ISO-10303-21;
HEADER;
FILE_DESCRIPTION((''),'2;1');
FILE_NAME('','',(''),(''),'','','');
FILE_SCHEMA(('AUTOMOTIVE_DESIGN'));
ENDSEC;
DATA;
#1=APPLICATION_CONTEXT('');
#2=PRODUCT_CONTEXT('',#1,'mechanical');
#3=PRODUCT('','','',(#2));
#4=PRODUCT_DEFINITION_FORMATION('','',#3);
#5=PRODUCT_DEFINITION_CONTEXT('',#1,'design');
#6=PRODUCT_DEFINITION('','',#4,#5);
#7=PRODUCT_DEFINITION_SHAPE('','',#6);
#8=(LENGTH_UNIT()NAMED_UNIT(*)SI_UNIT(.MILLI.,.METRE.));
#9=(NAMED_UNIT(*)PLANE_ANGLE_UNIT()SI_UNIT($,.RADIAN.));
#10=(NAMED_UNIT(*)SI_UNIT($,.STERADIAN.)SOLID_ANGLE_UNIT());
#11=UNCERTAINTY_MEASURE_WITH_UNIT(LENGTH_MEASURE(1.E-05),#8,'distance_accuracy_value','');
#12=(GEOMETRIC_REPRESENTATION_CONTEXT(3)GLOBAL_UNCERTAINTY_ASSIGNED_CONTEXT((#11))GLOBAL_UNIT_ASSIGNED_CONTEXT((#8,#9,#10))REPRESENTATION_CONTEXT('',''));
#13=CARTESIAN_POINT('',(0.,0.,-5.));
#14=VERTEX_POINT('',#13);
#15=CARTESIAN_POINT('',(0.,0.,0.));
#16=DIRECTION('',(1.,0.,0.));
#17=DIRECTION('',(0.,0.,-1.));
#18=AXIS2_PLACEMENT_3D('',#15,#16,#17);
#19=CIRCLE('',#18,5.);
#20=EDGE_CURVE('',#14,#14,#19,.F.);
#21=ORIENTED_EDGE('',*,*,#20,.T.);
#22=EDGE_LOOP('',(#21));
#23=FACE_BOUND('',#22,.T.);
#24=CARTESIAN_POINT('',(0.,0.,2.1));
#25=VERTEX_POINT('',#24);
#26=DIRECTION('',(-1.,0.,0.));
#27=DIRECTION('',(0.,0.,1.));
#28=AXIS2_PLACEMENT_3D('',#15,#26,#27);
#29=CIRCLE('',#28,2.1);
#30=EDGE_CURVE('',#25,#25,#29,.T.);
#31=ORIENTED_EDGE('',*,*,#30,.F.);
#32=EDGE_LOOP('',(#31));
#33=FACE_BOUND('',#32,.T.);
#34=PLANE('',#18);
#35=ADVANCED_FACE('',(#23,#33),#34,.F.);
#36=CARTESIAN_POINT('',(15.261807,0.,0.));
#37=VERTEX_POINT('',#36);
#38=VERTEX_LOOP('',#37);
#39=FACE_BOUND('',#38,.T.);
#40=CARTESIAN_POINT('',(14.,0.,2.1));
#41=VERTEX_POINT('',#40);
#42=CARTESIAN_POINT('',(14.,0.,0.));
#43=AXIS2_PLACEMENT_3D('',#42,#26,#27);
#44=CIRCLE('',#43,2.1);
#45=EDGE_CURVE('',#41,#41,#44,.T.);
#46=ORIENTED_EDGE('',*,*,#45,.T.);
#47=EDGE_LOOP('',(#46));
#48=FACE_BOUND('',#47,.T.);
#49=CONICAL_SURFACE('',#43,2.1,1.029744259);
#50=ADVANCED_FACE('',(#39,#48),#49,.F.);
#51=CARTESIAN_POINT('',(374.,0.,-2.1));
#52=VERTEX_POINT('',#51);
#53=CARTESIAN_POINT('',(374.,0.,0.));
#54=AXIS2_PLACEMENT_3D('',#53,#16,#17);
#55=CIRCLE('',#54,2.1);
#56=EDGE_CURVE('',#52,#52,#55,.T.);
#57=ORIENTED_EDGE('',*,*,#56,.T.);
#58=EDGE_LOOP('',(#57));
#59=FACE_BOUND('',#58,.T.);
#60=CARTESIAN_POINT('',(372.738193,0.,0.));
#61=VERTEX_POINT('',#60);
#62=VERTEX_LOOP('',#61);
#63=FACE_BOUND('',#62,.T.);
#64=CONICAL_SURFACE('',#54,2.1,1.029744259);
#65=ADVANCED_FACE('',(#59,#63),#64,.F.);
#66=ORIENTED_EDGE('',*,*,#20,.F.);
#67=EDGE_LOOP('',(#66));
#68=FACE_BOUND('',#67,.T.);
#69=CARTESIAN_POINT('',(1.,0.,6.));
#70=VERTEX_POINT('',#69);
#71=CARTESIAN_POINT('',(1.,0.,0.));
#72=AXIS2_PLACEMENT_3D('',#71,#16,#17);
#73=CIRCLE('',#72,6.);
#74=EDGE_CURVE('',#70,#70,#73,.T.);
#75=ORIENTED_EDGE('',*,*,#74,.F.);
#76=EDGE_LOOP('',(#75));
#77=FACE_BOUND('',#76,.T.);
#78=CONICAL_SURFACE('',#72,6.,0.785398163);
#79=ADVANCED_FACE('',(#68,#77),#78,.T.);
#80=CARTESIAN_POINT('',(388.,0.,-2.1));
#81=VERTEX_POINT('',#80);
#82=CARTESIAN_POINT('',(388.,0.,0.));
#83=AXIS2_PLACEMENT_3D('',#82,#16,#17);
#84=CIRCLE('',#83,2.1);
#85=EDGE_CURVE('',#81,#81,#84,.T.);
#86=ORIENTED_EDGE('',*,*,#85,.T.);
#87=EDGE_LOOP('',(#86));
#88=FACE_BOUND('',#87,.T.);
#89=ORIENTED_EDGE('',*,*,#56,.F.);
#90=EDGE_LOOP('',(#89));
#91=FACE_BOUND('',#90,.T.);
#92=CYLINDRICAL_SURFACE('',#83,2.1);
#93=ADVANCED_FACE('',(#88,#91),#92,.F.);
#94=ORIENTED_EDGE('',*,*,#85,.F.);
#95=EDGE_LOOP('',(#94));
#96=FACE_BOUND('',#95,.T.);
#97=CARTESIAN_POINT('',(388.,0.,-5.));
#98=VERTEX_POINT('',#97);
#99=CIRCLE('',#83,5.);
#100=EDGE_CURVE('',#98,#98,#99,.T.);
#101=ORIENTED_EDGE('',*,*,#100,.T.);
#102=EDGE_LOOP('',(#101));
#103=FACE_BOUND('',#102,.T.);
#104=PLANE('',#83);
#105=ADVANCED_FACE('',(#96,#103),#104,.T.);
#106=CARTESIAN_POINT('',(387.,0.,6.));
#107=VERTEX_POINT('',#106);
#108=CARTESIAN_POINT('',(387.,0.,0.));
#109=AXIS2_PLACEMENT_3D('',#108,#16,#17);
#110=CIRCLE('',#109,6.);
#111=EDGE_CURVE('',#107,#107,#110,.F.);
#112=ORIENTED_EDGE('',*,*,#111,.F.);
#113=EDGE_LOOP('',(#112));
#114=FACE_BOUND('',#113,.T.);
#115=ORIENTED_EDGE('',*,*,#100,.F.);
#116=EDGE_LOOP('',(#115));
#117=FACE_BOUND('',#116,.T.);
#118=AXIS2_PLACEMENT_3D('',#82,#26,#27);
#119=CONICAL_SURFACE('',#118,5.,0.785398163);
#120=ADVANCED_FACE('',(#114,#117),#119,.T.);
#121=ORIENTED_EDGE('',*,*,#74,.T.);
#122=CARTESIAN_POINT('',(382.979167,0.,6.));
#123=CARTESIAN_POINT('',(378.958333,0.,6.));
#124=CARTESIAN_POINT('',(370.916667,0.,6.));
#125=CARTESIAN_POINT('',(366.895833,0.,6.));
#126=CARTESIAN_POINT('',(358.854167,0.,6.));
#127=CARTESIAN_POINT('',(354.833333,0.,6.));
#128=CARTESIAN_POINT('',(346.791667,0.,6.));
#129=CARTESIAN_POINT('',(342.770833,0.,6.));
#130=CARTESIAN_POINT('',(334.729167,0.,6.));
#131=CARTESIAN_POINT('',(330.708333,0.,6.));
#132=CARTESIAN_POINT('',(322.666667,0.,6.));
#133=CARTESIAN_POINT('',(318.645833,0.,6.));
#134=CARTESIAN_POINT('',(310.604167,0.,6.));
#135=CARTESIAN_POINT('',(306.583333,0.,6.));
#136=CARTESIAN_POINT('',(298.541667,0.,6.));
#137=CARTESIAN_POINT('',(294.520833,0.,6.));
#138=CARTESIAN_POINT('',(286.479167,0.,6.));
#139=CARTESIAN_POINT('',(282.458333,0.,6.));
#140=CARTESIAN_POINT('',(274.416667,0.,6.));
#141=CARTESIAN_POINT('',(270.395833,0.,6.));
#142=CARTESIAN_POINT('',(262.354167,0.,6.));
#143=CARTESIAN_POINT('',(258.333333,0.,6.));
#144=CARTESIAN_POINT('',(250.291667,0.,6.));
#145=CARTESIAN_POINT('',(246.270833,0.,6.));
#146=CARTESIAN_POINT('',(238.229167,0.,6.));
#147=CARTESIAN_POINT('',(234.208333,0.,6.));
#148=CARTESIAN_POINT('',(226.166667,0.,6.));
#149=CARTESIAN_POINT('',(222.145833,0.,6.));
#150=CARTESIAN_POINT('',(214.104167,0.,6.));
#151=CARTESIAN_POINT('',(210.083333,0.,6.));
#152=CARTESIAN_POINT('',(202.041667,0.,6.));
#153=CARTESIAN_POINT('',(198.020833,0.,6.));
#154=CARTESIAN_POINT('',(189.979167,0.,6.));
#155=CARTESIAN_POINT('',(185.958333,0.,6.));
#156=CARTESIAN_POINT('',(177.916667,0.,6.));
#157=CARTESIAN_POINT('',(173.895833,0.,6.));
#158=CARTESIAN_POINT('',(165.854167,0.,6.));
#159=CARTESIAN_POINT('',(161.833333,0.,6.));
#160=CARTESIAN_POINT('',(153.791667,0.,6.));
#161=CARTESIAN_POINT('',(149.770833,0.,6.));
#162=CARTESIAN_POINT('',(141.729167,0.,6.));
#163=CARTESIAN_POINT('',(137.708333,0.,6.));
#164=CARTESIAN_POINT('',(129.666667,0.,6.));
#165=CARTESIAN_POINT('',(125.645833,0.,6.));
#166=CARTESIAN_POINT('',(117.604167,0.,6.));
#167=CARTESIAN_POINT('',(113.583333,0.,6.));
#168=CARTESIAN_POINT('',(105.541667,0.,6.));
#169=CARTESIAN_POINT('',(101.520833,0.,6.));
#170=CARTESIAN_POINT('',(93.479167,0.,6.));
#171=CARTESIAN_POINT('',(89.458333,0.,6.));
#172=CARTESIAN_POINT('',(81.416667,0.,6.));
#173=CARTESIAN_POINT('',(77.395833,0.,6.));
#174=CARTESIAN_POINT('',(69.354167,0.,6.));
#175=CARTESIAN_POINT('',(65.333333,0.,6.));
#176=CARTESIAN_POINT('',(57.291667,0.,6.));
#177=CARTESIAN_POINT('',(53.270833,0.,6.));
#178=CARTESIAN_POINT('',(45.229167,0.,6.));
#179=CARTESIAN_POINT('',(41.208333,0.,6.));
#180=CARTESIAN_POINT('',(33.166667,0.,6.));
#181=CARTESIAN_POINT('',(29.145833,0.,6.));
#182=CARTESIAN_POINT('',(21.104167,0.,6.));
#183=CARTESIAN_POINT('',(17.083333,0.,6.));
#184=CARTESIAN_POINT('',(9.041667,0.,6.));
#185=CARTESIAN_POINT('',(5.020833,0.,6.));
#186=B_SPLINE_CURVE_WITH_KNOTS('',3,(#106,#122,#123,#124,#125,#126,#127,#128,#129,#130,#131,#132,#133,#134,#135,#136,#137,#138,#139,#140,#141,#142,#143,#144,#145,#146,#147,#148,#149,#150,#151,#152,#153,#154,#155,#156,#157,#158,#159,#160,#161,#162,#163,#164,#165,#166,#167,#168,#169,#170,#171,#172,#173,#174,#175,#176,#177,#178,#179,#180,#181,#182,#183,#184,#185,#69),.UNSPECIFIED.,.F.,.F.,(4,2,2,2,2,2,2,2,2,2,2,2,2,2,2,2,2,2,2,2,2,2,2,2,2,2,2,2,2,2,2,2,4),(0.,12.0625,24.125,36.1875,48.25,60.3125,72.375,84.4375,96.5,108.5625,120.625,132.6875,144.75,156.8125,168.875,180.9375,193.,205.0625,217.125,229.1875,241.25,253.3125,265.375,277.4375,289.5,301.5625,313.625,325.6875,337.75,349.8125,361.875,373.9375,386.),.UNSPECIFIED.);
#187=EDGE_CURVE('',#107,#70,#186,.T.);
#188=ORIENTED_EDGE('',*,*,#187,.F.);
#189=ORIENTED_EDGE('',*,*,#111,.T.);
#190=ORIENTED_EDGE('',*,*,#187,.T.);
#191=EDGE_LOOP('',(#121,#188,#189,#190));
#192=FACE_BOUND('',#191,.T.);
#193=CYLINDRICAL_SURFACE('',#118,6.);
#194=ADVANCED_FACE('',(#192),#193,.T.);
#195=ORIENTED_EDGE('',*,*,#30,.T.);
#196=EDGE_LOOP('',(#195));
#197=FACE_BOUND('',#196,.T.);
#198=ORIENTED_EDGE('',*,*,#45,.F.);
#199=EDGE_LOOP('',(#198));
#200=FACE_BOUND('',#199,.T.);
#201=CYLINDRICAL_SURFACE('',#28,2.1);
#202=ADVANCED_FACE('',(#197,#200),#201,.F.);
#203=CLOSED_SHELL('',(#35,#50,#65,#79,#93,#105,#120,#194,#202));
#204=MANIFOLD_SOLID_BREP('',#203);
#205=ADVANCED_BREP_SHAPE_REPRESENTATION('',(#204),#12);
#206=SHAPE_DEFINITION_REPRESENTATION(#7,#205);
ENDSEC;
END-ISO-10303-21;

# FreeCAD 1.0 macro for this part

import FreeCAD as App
import Part
import Sketcher
from FreeCAD import Vector
Q = App.Units.Quantity


def edges_at(feature, points):
    """Names of the edges that pass closest to the given points."""
    edges = feature.Shape.Edges
    near = lambda p: min(range(len(edges)), key=lambda i: edges[i].distToShape(Part.Vertex(*p))[0])
    return sorted({f"Edge{near(p) + 1}" for p in points})

doc = App.newDocument("Part")
body = doc.addObject("PartDesign::Body", "Body")

sketch1 = body.newObject("Sketcher::SketchObject", "Sketch")
sketch1.AttachmentSupport = (doc.getObject("YZ_Plane"), [""])
sketch1.MapMode = "FlatFace"
sketch1.addGeometry(Part.Circle(Vector(0, 0, 0), Vector(0, 0, 1), 6), False)
sketch1.addConstraint([
    Sketcher.Constraint("Coincident", 0, 3, -1, 1),
    Sketcher.Constraint("Diameter", 0, Q("12 mm")),
])
pad1 = body.newObject("PartDesign::Pad", "Pad")
pad1.Profile = sketch1
pad1.Length = 388
doc.recompute()

chamfer = body.newObject("PartDesign::Chamfer", "Chamfer")
chamfer.Base = (pad1, edges_at(pad1, [(0, 0, -6), (388, 0, -6)]))
chamfer.Size = 1

sketch2 = body.newObject("Sketcher::SketchObject", "Sketch001")
sketch2.AttachmentSupport = (doc.getObject("YZ_Plane"), [""])
sketch2.MapMode = "FlatFace"
sketch2.AttachmentOffset = App.Placement(Vector(0, 0, 388), App.Rotation())
sketch2.addGeometry(Part.Circle(Vector(0, 0, 0), Vector(0, 0, 1), 2.1), False)
sketch2.addConstraint([
    Sketcher.Constraint("Coincident", 0, 3, -1, 1),
    Sketcher.Constraint("Diameter", 0, Q("4.2 mm")),
])
doc.recompute()
hole = body.newObject("PartDesign::Hole", "Hole")
hole.Profile = sketch2
hole.ThreadType = "None"
hole.Diameter = 4.2
hole.DepthType = "Dimension"
hole.Depth = 14
hole.DrillPoint = "Angled"
hole.DrillPointAngle = 118

sketch3 = body.newObject("Sketcher::SketchObject", "Sketch002")
sketch3.AttachmentSupport = (doc.getObject("YZ_Plane"), [""])
sketch3.MapMode = "FlatFace"
sketch3.addGeometry(Part.Circle(Vector(0, 0, 0), Vector(0, 0, 1), 2.1), False)
sketch3.addConstraint([
    Sketcher.Constraint("Coincident", 0, 3, -1, 1),
    Sketcher.Constraint("Diameter", 0, Q("4.2 mm")),
])
doc.recompute()
hole2 = body.newObject("PartDesign::Hole", "Hole001")
hole2.Profile = sketch3
hole2.ThreadType = "None"
hole2.Diameter = 4.2
hole2.DepthType = "Dimension"
hole2.Depth = 14
hole2.DrillPoint = "Angled"
hole2.DrillPointAngle = 118
hole2.Reversed = True

doc.recompute()
